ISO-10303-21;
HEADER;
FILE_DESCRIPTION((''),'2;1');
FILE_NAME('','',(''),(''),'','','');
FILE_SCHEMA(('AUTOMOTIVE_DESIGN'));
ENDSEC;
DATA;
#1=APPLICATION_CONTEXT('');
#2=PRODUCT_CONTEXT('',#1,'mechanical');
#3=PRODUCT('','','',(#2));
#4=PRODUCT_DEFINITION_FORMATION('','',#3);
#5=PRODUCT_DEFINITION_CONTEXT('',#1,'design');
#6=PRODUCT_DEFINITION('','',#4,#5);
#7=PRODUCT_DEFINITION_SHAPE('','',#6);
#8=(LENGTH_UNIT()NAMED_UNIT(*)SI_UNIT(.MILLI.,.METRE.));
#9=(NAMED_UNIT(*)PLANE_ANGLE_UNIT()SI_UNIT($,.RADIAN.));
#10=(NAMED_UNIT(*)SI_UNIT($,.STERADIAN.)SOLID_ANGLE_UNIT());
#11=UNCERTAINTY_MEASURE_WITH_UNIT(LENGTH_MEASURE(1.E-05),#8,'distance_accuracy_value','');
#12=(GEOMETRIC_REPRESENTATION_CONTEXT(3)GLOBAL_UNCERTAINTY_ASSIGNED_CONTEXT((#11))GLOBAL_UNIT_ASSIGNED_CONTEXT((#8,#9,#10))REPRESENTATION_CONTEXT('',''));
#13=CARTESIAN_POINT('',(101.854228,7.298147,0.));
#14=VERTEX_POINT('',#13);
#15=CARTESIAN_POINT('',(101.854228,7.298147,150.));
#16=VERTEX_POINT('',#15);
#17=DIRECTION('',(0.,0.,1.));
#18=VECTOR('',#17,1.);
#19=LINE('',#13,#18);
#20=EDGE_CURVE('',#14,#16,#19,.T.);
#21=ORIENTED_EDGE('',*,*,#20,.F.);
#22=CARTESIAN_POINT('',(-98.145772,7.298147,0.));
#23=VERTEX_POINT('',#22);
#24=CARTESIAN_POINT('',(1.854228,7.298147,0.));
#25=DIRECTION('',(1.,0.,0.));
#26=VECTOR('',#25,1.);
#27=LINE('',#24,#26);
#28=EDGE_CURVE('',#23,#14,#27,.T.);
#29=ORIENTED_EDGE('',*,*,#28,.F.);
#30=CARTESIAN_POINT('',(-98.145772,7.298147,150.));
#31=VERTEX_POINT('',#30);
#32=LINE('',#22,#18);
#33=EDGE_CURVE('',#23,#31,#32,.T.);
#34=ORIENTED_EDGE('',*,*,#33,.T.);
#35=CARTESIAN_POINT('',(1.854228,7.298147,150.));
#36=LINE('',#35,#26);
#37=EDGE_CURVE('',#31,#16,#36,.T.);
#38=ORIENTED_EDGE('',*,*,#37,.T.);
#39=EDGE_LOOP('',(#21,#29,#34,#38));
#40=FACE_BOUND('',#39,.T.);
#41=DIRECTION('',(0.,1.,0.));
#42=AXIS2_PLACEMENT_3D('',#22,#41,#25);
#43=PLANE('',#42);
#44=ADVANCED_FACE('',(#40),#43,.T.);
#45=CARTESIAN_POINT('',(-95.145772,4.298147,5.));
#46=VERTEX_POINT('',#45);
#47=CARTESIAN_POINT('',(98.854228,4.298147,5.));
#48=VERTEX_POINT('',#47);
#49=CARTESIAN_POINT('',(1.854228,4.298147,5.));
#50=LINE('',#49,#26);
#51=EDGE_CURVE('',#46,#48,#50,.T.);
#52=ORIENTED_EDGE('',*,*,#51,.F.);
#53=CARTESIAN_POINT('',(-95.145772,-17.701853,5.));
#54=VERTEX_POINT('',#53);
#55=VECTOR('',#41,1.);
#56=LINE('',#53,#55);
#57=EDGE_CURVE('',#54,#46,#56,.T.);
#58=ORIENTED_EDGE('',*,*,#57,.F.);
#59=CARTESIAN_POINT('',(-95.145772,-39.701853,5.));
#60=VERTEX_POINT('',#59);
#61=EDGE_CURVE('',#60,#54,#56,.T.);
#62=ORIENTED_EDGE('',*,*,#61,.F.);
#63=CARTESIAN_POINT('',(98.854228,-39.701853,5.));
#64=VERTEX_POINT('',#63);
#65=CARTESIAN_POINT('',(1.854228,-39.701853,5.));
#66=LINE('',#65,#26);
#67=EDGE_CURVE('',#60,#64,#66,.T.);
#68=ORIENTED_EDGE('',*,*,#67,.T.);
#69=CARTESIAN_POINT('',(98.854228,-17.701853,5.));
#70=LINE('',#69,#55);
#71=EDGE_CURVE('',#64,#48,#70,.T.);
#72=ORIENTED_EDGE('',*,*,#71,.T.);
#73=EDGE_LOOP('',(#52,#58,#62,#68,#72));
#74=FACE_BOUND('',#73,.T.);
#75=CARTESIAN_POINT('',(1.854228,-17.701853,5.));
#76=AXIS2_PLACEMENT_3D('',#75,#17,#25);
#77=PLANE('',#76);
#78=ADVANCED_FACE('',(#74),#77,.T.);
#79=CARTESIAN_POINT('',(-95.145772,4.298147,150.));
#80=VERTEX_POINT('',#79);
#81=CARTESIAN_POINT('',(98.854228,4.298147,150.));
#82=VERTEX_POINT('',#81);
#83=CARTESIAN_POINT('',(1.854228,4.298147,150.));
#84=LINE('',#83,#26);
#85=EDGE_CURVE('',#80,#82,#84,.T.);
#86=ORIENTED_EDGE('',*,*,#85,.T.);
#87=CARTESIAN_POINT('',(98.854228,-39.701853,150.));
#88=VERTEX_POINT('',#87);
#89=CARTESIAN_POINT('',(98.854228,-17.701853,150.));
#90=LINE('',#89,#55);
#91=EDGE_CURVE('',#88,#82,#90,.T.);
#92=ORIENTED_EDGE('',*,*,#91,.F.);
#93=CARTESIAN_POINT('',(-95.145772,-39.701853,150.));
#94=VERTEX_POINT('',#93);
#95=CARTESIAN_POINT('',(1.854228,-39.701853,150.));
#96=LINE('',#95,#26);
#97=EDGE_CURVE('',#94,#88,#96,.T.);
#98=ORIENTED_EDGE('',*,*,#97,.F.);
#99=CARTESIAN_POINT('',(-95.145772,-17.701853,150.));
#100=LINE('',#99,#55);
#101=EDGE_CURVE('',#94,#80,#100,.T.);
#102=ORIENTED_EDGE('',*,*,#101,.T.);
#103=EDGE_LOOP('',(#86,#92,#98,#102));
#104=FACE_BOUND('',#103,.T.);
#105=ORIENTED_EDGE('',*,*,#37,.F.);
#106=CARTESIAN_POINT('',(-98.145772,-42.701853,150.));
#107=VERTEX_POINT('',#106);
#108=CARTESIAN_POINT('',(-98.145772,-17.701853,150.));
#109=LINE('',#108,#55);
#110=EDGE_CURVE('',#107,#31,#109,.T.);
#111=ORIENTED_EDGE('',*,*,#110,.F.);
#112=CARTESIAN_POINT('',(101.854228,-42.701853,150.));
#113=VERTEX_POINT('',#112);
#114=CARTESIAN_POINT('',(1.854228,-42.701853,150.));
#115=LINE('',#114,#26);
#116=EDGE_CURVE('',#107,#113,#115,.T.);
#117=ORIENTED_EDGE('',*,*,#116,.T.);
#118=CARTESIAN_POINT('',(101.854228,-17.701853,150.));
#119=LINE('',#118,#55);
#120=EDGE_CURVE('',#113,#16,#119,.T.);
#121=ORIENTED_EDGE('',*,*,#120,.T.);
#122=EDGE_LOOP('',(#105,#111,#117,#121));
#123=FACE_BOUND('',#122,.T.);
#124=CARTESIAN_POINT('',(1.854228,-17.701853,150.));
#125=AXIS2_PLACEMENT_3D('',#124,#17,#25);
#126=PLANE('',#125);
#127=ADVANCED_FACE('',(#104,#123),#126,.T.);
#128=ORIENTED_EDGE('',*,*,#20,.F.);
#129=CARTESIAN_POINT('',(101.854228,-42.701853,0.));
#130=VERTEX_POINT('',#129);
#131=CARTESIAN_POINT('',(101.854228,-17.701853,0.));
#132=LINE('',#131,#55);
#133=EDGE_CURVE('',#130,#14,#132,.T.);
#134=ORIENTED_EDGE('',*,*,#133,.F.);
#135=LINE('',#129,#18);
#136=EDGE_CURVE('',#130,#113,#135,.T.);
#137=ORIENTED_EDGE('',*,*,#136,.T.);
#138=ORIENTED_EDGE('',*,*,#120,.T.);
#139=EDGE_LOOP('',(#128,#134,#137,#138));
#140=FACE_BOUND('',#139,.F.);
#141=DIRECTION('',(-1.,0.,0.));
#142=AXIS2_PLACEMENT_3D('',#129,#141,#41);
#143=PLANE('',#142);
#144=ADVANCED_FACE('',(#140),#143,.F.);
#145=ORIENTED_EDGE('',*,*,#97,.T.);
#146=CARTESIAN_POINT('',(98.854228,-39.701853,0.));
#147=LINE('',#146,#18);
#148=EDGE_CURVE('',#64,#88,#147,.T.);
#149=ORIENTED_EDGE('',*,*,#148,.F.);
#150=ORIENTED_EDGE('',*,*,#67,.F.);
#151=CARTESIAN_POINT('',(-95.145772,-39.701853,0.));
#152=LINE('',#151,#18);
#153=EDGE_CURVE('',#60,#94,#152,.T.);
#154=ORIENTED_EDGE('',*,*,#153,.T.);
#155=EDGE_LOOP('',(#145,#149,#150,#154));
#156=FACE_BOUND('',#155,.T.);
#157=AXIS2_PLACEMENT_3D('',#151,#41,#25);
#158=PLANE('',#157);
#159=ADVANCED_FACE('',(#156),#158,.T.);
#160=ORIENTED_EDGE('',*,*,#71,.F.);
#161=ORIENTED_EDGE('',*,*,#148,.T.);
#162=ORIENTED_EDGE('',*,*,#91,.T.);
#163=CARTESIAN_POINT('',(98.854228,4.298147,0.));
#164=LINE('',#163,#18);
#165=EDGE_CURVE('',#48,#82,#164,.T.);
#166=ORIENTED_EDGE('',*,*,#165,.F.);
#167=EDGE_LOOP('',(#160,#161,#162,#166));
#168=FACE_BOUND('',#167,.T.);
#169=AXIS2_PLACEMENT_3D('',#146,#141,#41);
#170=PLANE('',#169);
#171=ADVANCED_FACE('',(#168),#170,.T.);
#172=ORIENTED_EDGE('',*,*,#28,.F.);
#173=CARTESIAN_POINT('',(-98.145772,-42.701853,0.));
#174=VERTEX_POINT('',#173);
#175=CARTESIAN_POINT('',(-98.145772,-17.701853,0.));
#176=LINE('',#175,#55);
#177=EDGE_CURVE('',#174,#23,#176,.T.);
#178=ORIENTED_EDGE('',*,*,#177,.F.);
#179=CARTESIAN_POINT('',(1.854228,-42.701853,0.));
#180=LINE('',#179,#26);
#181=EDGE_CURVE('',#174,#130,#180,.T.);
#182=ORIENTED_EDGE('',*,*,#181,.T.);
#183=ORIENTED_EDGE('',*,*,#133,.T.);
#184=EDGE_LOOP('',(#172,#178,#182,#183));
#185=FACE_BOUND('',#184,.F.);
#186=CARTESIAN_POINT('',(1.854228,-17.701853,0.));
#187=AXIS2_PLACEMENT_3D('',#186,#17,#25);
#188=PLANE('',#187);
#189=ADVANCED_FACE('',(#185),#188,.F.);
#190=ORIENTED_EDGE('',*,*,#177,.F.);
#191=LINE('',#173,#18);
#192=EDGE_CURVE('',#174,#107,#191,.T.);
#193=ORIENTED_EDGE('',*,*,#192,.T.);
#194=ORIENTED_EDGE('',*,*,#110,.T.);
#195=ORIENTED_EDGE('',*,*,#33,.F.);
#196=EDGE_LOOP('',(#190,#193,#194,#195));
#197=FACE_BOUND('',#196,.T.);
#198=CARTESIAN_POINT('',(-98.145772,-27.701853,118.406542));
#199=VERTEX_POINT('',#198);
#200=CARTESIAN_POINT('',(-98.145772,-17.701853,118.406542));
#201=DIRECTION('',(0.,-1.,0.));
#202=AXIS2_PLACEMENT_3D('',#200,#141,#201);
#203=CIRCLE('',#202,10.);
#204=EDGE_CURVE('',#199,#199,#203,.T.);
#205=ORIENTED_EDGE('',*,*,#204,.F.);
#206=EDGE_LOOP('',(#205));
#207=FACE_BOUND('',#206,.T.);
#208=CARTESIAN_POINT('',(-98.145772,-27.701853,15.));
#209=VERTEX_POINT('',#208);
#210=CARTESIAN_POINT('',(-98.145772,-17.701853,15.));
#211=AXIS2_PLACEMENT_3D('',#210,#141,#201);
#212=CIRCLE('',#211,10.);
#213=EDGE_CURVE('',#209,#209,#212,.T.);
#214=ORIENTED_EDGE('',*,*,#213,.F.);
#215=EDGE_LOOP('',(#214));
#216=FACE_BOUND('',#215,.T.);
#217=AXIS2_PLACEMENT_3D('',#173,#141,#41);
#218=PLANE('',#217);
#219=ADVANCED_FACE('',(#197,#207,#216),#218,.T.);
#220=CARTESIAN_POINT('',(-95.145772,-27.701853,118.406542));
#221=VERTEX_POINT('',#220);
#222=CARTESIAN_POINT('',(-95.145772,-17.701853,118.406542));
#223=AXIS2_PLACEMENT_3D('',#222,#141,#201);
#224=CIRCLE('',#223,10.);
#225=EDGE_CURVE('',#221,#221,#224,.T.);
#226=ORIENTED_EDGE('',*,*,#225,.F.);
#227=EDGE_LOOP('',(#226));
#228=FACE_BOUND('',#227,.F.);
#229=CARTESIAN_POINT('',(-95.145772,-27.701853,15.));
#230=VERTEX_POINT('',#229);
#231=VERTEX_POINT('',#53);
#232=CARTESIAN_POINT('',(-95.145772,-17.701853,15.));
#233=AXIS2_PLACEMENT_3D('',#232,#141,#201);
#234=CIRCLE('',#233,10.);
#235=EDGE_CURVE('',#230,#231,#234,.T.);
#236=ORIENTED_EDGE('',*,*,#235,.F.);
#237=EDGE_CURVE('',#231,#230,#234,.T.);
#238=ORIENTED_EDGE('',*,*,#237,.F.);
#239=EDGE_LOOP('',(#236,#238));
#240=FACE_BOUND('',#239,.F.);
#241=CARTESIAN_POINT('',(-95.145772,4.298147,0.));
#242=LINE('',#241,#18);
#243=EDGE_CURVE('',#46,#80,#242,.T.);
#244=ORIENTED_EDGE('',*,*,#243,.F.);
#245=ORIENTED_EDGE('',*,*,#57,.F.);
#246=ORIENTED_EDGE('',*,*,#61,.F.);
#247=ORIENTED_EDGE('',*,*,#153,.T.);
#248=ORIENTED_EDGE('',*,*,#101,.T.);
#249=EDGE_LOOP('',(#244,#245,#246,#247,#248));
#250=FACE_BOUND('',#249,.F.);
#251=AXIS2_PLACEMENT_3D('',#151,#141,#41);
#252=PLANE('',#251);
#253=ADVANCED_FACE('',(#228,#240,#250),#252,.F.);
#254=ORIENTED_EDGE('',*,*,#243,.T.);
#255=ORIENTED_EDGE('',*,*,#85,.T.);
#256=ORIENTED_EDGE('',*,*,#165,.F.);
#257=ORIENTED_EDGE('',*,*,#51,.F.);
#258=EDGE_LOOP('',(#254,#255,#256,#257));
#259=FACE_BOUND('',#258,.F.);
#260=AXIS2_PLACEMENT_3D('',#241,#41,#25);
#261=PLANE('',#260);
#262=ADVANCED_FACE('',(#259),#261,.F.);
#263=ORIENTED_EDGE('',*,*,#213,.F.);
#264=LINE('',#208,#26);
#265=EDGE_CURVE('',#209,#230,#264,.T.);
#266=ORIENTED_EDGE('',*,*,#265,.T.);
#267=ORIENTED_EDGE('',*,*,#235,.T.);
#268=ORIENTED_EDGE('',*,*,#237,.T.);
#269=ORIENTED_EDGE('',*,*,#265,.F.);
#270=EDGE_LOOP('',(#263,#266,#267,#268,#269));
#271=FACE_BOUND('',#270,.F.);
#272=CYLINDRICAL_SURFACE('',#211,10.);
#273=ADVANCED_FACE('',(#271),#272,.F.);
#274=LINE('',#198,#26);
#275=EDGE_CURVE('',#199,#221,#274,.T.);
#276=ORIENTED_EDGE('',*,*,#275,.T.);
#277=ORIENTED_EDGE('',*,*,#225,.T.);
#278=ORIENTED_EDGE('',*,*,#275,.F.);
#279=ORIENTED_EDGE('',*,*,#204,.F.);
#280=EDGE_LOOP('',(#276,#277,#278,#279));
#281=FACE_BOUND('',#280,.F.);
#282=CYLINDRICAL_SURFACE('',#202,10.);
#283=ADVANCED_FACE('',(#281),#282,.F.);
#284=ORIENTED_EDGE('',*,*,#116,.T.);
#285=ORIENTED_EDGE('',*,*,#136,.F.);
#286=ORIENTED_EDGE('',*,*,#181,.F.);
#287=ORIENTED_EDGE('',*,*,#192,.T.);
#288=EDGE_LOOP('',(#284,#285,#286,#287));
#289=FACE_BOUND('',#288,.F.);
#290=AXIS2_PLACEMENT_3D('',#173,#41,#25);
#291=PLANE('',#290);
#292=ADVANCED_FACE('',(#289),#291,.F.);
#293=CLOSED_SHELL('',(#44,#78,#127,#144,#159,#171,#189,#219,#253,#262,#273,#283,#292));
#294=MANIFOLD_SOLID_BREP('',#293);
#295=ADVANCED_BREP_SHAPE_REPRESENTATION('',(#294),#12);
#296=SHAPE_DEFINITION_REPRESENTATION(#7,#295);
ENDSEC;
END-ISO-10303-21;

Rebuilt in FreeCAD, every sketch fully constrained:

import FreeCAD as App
import Part
import Sketcher


def add_polygon(sketch, points):
    """Adds a closed chain of lines whose ends are joined by coincident constraints."""
    first, n = sketch.GeometryCount, len(points)
    for a, b in zip(points, points[1:] + points[:1]):
        sketch.addGeometry(Part.LineSegment(App.Vector(*a, 0), App.Vector(*b, 0)), False)
    for i in range(n):
        sketch.addConstraint(Sketcher.Constraint("Coincident", first + i, 2, first + (i + 1) % n, 1))

doc = App.newDocument("Part")
body = doc.addObject("PartDesign::Body", "Body")

# Sketch on XY plane
sketch1 = body.newObject("Sketcher::SketchObject", "Sketch")
sketch1.AttachmentSupport = (doc.getObject("XY_Plane"), [""])
sketch1.MapMode = "FlatFace"
add_polygon(sketch1, [(-98, 7), (-98, -43), (102, -43), (102, 7)])  # lines 0-3
add_polygon(sketch1, [(99, -40), (-95, -40), (-95, 4), (99, 4)])  # lines 4-7
sketch1.addConstraint([
    Sketcher.Constraint("Vertical", 0),
    Sketcher.Constraint("Horizontal", 1),
    Sketcher.Constraint("Vertical", 2),
    Sketcher.Constraint("Horizontal", 3),
    Sketcher.Constraint("Horizontal", 4),
    Sketcher.Constraint("Vertical", 5),
    Sketcher.Constraint("Horizontal", 6),
    Sketcher.Constraint("Vertical", 7),
    Sketcher.Constraint("DistanceX", 1, 1, 1, 2, 200.0),
    Sketcher.Constraint("DistanceX", 4, 2, 4, 1, 194.0),
    Sketcher.Constraint("DistanceY", 0, 2, 0, 1, 50.0),
    Sketcher.Constraint("DistanceY", 5, 1, 5, 2, 44.0),
    Sketcher.Constraint("DistanceX", 0, 2, 4, 2, 3.0),
    Sketcher.Constraint("DistanceY", 0, 2, 4, 2, 3.0),
    Sketcher.Constraint("DistanceX", 0, 2, -1, 1, 98.145772),
    Sketcher.Constraint("DistanceY", 0, 2, -1, 1, 42.701853),
])
pad1 = body.newObject("PartDesign::Pad", "Pad")
pad1.Profile = sketch1
pad1.Length = 150

# Sketch on XY plane
sketch2 = body.newObject("Sketcher::SketchObject", "Sketch001")
sketch2.AttachmentSupport = (doc.getObject("XY_Plane"), [""])
sketch2.MapMode = "FlatFace"
add_polygon(sketch2, [(-95, 4), (-95, -40), (99, -40), (99, 4)])  # lines 0-3
sketch2.addConstraint([
    Sketcher.Constraint("Vertical", 0),
    Sketcher.Constraint("Horizontal", 1),
    Sketcher.Constraint("Vertical", 2),
    Sketcher.Constraint("Horizontal", 3),
    Sketcher.Constraint("DistanceX", 1, 1, 1, 2, 194.0),
    Sketcher.Constraint("DistanceY", 0, 2, 0, 1, 44.0),
    Sketcher.Constraint("DistanceX", 0, 2, -1, 1, 95.145772),
    Sketcher.Constraint("DistanceY", 0, 2, -1, 1, 39.701853),
])
pad2 = body.newObject("PartDesign::Pad", "Pad001")
pad2.Profile = sketch2
pad2.Length = 5

# Sketch on YZ plane
sketch3 = body.newObject("Sketcher::SketchObject", "Sketch002")
sketch3.AttachmentSupport = (doc.getObject("YZ_Plane"), [""])
sketch3.MapMode = "FlatFace"
sketch3.AttachmentOffset = App.Placement(App.Vector(0, 0, -98.145772), App.Rotation())
sketch3.addGeometry(Part.Circle(App.Vector(-18, 118, 0), App.Vector(0, 0, 1), 10), False)
sketch3.addConstraint([
    Sketcher.Constraint("Diameter", 0, 20.0),
    Sketcher.Constraint("DistanceY", -1, 1, 0, 3, 118.406542),
    Sketcher.Constraint("DistanceX", 0, 3, -1, 1, 17.701853),
])
pocket1 = body.newObject("PartDesign::Pocket", "Pocket")
pocket1.Profile = sketch3
pocket1.Length = 25.4
pocket1.Reversed = True

# Sketch on YZ plane
sketch4 = body.newObject("Sketcher::SketchObject", "Sketch003")
sketch4.AttachmentSupport = (doc.getObject("YZ_Plane"), [""])
sketch4.MapMode = "FlatFace"
sketch4.AttachmentOffset = App.Placement(App.Vector(0, 0, -98.145772), App.Rotation())
sketch4.addGeometry(Part.Circle(App.Vector(-18, 15, 0), App.Vector(0, 0, 1), 10), False)
sketch4.addConstraint([
    Sketcher.Constraint("Diameter", 0, 20.0),
    Sketcher.Constraint("DistanceY", -1, 1, 0, 3, 15.0),
    Sketcher.Constraint("DistanceX", 0, 3, -1, 1, 17.701853),
])
pocket2 = body.newObject("PartDesign::Pocket", "Pocket001")
pocket2.Profile = sketch4
pocket2.Length = 25.4
pocket2.Reversed = True

doc.recompute()
